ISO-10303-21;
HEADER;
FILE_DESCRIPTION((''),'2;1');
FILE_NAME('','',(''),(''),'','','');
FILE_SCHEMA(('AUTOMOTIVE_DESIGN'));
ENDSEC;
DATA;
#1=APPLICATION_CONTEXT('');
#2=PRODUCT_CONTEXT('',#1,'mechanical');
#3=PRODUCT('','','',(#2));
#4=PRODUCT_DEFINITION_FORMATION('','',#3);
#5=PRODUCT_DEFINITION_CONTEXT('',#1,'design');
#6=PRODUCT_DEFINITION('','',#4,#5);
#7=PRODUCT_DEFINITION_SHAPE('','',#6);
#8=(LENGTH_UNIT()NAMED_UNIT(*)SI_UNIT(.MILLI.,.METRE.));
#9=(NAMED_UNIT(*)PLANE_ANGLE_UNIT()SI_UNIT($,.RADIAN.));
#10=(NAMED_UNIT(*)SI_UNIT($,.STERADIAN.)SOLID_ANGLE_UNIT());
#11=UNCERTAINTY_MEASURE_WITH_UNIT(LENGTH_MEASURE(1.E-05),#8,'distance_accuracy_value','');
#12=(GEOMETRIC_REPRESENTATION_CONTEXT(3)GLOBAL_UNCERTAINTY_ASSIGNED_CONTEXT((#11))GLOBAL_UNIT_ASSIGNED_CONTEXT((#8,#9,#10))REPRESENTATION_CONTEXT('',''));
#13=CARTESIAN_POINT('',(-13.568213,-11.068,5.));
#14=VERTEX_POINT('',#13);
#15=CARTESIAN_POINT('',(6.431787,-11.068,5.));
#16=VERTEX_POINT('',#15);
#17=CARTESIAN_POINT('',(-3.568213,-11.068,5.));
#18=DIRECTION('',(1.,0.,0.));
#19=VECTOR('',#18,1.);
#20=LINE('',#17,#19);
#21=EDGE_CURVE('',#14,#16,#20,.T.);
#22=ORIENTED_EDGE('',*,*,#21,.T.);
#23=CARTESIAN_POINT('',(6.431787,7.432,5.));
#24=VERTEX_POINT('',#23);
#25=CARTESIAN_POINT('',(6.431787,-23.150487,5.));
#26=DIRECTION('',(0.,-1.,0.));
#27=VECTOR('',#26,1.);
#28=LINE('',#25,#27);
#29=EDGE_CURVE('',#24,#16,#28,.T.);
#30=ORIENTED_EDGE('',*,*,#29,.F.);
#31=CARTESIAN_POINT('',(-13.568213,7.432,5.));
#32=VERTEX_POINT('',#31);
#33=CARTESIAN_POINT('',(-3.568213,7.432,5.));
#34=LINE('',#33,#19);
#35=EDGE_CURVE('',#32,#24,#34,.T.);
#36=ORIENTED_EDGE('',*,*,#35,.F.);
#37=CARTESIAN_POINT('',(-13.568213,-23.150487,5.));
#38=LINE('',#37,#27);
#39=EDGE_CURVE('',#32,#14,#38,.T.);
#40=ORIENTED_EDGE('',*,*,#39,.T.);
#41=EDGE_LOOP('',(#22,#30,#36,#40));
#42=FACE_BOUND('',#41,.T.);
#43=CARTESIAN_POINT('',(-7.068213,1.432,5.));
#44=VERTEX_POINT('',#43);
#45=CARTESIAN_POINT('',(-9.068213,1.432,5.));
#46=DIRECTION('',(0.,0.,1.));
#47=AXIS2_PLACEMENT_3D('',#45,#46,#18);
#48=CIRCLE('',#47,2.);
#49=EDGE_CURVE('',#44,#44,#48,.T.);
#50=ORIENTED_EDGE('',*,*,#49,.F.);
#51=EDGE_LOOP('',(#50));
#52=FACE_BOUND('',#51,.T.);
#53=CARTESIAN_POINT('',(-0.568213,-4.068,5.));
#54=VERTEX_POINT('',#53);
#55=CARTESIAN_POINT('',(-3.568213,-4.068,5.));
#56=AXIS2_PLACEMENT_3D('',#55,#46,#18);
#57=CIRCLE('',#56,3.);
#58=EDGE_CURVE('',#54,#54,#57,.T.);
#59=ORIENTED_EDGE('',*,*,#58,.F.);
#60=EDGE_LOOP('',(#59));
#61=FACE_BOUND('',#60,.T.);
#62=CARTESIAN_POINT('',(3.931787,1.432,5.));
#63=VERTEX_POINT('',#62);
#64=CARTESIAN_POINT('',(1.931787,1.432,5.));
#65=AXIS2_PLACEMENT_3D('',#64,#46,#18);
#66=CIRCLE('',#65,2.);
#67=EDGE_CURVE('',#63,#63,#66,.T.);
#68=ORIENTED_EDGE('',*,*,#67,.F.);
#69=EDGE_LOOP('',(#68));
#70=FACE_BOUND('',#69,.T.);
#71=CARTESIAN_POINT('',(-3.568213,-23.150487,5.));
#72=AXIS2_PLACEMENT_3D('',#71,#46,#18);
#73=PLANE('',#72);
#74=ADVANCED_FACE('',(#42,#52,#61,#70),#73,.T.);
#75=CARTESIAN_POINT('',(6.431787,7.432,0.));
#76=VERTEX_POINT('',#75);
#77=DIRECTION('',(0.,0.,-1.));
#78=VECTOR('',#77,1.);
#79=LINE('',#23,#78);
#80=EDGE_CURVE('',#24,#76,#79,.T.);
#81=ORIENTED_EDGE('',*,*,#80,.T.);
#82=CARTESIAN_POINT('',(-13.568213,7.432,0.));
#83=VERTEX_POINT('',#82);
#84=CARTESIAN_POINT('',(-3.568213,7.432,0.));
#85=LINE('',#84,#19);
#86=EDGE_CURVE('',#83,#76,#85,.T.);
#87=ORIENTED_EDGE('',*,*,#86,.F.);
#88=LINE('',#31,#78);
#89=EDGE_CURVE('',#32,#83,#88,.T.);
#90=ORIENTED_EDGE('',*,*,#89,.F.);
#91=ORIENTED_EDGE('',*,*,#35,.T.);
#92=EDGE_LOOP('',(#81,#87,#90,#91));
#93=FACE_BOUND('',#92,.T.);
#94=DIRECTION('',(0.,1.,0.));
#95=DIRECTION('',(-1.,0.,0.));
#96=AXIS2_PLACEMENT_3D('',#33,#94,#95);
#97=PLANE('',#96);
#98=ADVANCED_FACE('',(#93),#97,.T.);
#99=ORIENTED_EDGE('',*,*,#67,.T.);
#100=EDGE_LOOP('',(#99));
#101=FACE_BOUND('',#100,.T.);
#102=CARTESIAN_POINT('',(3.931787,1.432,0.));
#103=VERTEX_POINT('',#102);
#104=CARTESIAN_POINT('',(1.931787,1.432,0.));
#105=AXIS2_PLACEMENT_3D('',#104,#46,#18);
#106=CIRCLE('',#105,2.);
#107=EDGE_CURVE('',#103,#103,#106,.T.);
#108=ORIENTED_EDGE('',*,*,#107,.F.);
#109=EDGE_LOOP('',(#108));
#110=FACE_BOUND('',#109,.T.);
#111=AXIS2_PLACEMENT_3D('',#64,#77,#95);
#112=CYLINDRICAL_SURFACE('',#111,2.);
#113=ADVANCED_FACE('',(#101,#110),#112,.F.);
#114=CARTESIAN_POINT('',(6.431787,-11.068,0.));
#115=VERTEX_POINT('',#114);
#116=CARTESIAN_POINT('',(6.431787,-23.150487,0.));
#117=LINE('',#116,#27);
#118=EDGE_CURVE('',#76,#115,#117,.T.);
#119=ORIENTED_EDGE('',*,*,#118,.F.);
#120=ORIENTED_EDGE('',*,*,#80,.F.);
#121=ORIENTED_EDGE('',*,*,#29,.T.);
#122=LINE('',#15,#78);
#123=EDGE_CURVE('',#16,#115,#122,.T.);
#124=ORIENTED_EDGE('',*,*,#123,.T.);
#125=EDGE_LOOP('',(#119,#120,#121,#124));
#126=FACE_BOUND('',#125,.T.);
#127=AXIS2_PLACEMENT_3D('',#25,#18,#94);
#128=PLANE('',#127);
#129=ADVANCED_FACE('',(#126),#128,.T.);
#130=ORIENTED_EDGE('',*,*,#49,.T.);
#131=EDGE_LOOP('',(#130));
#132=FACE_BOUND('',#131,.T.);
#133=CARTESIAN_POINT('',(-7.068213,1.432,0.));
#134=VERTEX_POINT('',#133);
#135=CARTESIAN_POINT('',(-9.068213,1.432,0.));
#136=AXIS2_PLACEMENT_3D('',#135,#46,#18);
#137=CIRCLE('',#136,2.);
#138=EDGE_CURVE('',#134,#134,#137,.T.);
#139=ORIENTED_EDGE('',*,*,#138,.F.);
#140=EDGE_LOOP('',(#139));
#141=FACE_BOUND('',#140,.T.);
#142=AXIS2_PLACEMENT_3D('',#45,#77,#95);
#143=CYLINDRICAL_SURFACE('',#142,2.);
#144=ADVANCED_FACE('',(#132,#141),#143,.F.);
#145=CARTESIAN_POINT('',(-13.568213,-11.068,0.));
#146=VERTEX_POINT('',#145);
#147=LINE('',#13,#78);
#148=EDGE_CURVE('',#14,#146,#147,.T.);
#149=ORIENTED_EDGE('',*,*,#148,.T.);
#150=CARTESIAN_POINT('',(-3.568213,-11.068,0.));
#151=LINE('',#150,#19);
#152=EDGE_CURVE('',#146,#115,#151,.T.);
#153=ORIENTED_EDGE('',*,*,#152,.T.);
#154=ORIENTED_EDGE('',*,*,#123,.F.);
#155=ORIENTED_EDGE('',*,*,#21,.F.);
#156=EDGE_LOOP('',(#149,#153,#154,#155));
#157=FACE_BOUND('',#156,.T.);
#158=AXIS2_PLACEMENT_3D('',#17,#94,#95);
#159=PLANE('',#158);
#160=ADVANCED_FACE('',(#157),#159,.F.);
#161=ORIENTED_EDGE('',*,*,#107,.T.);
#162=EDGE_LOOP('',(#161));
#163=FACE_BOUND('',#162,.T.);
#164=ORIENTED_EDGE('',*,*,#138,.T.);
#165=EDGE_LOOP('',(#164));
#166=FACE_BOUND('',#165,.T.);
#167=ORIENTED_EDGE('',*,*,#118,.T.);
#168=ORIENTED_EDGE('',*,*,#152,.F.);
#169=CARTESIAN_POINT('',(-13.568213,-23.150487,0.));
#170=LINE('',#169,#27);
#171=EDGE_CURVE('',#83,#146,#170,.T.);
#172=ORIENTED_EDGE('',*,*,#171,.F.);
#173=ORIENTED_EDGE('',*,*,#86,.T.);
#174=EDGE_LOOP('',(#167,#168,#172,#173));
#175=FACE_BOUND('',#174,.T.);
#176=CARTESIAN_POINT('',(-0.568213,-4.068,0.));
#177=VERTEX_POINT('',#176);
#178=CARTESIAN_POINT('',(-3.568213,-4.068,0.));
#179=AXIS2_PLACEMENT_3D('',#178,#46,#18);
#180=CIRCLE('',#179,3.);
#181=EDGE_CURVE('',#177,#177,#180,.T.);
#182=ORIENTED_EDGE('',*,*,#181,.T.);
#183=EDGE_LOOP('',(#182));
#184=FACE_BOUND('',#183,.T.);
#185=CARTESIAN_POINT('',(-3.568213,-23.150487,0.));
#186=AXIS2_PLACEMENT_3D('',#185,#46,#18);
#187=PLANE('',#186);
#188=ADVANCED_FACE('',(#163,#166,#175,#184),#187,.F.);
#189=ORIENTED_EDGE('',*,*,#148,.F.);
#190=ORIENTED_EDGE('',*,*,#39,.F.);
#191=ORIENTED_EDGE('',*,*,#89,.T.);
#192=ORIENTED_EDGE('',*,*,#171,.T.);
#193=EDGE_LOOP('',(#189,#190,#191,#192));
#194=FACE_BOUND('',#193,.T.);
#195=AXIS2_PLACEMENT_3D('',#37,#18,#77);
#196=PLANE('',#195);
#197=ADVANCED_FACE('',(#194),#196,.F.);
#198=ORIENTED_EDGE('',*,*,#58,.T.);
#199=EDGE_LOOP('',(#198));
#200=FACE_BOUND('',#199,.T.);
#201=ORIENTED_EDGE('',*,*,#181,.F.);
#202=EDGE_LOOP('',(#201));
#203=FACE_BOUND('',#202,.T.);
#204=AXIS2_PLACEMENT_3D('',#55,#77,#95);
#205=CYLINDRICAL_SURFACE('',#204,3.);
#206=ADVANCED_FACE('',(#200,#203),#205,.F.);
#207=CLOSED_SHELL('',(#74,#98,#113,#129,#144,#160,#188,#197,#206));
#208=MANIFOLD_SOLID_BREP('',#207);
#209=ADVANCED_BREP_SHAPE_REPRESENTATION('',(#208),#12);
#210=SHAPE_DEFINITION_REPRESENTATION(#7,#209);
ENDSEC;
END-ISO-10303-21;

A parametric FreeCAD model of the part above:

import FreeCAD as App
import Part
import Sketcher

V = App.Vector

doc = App.newDocument("Part")
body = doc.addObject("PartDesign::Body", "Body")

sketch1 = doc.addObject("Sketcher::SketchObject", "Sketch")
body.addObject(sketch1)
sketch1.AttachmentSupport = (doc.XY_Plane, [""])
sketch1.MapMode = "FlatFace"
sketch1.addGeometry(Part.LineSegment(V(-13.6, 7.4, 0), V(-13.6, -11.1, 0)), False)
sketch1.addGeometry(Part.LineSegment(V(-13.6, -11.1, 0), V(6.4, -11.1, 0)), False)
sketch1.addGeometry(Part.LineSegment(V(6.4, -11.1, 0), V(6.4, 7.4, 0)), False)
sketch1.addGeometry(Part.LineSegment(V(6.4, 7.4, 0), V(-13.6, 7.4, 0)), False)
sketch1.addGeometry(Part.Circle(V(-3.6, -4.1, 0), V(0, 0, 1), 3), False)
sketch1.addGeometry(Part.Circle(V(-9.1, 1.4, 0), V(0, 0, 1), 2), False)
sketch1.addGeometry(Part.Circle(V(1.9, 1.4, 0), V(0, 0, 1), 2), False)
sketch1.addConstraint(Sketcher.Constraint("Coincident", 0, 2, 1, 1))
sketch1.addConstraint(Sketcher.Constraint("Coincident", 1, 2, 2, 1))
sketch1.addConstraint(Sketcher.Constraint("Coincident", 2, 2, 3, 1))
sketch1.addConstraint(Sketcher.Constraint("Coincident", 3, 2, 0, 1))
sketch1.addConstraint(Sketcher.Constraint("Vertical", 0))
sketch1.addConstraint(Sketcher.Constraint("Horizontal", 1))
sketch1.addConstraint(Sketcher.Constraint("Vertical", 2))
sketch1.addConstraint(Sketcher.Constraint("Horizontal", 3))
sketch1.addConstraint(Sketcher.Constraint("Equal", 5, 6))
sketch1.addConstraint(Sketcher.Constraint("Horizontal", 5, 3, 6, 3))
sketch1.addConstraint(Sketcher.Constraint("Diameter", 4, 6.0))
sketch1.addConstraint(Sketcher.Constraint("Diameter", 5, 4.0))
sketch1.addConstraint(Sketcher.Constraint("DistanceX", 1, 1, 1, 2, 20.0))
sketch1.addConstraint(Sketcher.Constraint("DistanceY", 0, 2, 0, 1, 18.5))
sketch1.addConstraint(Sketcher.Constraint("DistanceX", 5, 3, 6, 3, 11.0))
sketch1.addConstraint(Sketcher.Constraint("DistanceX", 0, 2, 4, 3, 10.0))
sketch1.addConstraint(Sketcher.Constraint("DistanceY", 0, 2, 4, 3, 7.0))
sketch1.addConstraint(Sketcher.Constraint("DistanceY", 6, 3, 2, 2, 6.0))
sketch1.addConstraint(Sketcher.Constraint("DistanceX", 5, 3, 4, 3, 5.5))
sketch1.addConstraint(Sketcher.Constraint("DistanceY", 4, 3, -1, 1, 4.068))
sketch1.addConstraint(Sketcher.Constraint("DistanceX", 4, 3, -1, 1, 3.568213))
pad1 = doc.addObject("PartDesign::Pad", "Pad")
body.addObject(pad1)
pad1.Profile = sketch1
pad1.Length = 5

doc.recompute()
